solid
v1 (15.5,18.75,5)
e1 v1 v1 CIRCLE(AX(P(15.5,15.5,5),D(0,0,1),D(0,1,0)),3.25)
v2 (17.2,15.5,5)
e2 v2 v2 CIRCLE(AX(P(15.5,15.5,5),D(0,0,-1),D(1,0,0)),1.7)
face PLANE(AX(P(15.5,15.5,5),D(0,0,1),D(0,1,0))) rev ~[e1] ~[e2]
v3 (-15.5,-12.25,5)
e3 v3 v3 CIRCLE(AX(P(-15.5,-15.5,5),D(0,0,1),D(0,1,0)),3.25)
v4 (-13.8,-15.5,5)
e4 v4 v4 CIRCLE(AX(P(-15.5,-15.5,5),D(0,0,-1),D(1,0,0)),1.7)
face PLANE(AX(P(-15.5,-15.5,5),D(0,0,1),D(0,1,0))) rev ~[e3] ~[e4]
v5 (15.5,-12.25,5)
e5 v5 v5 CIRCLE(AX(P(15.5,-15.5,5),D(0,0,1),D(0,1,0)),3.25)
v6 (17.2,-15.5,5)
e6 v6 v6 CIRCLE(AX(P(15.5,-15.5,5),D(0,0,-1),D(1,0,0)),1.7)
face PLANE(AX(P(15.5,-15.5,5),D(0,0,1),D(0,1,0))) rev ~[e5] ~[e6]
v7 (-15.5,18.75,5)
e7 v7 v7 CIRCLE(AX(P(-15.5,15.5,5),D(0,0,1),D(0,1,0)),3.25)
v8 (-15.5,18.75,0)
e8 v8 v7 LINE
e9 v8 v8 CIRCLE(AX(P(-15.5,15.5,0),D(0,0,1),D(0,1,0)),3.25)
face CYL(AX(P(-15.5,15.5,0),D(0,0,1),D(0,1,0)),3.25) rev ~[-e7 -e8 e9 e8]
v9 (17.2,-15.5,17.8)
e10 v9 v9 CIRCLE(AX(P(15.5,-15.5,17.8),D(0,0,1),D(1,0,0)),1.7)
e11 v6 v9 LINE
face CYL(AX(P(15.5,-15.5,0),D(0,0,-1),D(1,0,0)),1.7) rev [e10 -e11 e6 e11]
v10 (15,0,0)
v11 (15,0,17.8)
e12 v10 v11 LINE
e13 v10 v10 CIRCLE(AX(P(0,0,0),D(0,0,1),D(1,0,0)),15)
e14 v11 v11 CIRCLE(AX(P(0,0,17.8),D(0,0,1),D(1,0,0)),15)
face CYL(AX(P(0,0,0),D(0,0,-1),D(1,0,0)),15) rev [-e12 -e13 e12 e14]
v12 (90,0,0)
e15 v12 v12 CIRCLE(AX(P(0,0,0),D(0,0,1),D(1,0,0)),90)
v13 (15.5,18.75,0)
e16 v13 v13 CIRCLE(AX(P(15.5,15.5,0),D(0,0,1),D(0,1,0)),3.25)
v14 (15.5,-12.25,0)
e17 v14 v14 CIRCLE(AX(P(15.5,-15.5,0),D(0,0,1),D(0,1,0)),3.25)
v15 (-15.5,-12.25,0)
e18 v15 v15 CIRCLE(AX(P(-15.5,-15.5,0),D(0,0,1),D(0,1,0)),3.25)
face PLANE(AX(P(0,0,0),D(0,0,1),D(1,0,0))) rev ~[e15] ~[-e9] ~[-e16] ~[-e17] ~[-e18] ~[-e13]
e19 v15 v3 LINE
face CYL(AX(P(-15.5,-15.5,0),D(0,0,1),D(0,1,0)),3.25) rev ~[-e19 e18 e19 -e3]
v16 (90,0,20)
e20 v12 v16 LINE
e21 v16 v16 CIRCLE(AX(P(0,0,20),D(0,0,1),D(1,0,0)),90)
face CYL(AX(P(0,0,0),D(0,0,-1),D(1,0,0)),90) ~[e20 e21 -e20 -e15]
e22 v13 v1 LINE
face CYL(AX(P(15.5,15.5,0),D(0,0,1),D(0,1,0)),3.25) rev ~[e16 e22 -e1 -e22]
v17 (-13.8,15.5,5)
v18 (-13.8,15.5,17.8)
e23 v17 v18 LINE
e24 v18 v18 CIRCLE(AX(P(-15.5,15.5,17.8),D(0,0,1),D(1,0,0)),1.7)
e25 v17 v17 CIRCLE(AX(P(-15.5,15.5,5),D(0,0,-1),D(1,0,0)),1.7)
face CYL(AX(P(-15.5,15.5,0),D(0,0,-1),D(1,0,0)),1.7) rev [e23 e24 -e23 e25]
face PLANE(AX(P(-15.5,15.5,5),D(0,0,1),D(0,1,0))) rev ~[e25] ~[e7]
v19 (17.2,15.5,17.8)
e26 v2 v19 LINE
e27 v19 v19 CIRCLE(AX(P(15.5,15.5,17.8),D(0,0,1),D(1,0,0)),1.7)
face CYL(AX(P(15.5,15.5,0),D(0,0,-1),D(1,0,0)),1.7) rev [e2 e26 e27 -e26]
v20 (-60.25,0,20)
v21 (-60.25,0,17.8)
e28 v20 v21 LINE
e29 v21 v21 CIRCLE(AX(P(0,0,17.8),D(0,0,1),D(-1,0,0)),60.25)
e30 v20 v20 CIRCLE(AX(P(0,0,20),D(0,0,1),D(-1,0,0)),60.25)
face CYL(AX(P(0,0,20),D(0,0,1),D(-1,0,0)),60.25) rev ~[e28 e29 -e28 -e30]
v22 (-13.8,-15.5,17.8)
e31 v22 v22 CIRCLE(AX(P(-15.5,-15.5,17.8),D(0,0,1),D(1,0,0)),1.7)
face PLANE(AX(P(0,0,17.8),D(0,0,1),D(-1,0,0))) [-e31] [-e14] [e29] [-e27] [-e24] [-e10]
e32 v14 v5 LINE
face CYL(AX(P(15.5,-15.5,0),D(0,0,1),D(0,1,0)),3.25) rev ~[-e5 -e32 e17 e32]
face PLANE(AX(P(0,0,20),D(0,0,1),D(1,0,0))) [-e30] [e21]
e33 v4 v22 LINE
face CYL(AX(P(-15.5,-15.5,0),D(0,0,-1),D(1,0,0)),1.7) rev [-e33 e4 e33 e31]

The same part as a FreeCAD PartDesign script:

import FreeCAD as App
import Part
import Sketcher
Q = App.Units.Quantity

doc = App.newDocument("Part")
body = doc.addObject("PartDesign::Body", "Body")

sketch1 = body.newObject("Sketcher::SketchObject", "Sketch")
sketch1.AttachmentSupport = (doc.getObject("XY_Plane"), [""])
sketch1.MapMode = "FlatFace"
sketch1.addGeometry([
    Part.Circle(App.Vector(0, 0, 0), App.Vector(0, 0, 1), 90),
    Part.Circle(App.Vector(-15.5, 15.5, 0), App.Vector(0, 0, 1), 1.7),
    Part.Circle(App.Vector(-15.5, -15.5, 0), App.Vector(0, 0, 1), 1.7),
    Part.Circle(App.Vector(15.5, -15.5, 0), App.Vector(0, 0, 1), 1.7),
    Part.Circle(App.Vector(15.5, 15.5, 0), App.Vector(0, 0, 1), 1.7),
    Part.Circle(App.Vector(0, 0, 0), App.Vector(0, 0, 1), 15),
], False)
sketch1.addConstraint([
    Sketcher.Constraint("Coincident", 0, 3, -1, 1),
    Sketcher.Constraint("Coincident", 5, 3, -1, 1),
    Sketcher.Constraint("Equal", 1, 2),
    Sketcher.Constraint("Equal", 2, 3),
    Sketcher.Constraint("Equal", 3, 4),
    Sketcher.Constraint("Symmetric", 1, 3, 3, 3, -1, 1),
    Sketcher.Constraint("Symmetric", 2, 3, 4, 3, -1, 1),
    Sketcher.Constraint("Symmetric", 2, 3, 3, 3, -2),
    Sketcher.Constraint("Diameter", 0, Q("180 mm")),
    Sketcher.Constraint("Diameter", 5, Q("30 mm")),
    Sketcher.Constraint("Diameter", 1, Q("3.4 mm")),
    Sketcher.Constraint("DistanceY", 2, 3, 1, 3, Q("31 mm")),
    Sketcher.Constraint("DistanceX", 2, 3, 3, 3, Q("31 mm")),
])
pad1 = body.newObject("PartDesign::Pad", "Pad")
pad1.Profile = sketch1
pad1.Length = 20

sketch2 = body.newObject("Sketcher::SketchObject", "Sketch001")
sketch2.AttachmentSupport = (doc.getObject("XY_Plane"), [""])
sketch2.MapMode = "FlatFace"
sketch2.AttachmentOffset = App.Placement(App.Vector(0, 0, 20), App.Rotation())
sketch2.addGeometry([
    Part.Circle(App.Vector(0, 0, 0), App.Vector(0, 0, 1), 60.25),
    Part.Circle(App.Vector(15.5, 15.5, 0), App.Vector(0, 0, 1), 1.7),
    Part.Circle(App.Vector(-15.5, 15.5, 0), App.Vector(0, 0, 1), 1.7),
    Part.Circle(App.Vector(15.5, -15.5, 0), App.Vector(0, 0, 1), 1.7),
    Part.Circle(App.Vector(0, 0, 0), App.Vector(0, 0, 1), 15),
    Part.Circle(App.Vector(-15.5, -15.5, 0), App.Vector(0, 0, 1), 1.7),
], False)
sketch2.addConstraint([
    Sketcher.Constraint("Coincident", 0, 3, -1, 1),
    Sketcher.Constraint("Coincident", 4, 3, -1, 1),
    Sketcher.Constraint("Equal", 1, 2),
    Sketcher.Constraint("Equal", 2, 3),
    Sketcher.Constraint("Equal", 3, 5),
    Sketcher.Constraint("Symmetric", 2, 3, 3, 3, -1, 1),
    Sketcher.Constraint("Symmetric", 1, 3, 5, 3, -1, 1),
    Sketcher.Constraint("Symmetric", 1, 3, 2, 3, -2),
    Sketcher.Constraint("Diameter", 0, Q("120.5 mm")),
    Sketcher.Constraint("Diameter", 4, Q("30 mm")),
    Sketcher.Constraint("Diameter", 1, Q("3.4 mm")),
    Sketcher.Constraint("DistanceX", 2, 3, 1, 3, Q("31 mm")),
    Sketcher.Constraint("DistanceY", 3, 3, 1, 3, Q("31 mm")),
])
pocket1 = body.newObject("PartDesign::Pocket", "Pocket")
pocket1.Profile = sketch2
pocket1.Length = 2.2

sketch3 = body.newObject("Sketcher::SketchObject", "Sketch002")
sketch3.AttachmentSupport = (doc.getObject("XY_Plane"), [""])
sketch3.MapMode = "FlatFace"
sketch3.addGeometry(Part.Circle(App.Vector(15.5, -15.5, 0), App.Vector(0, 0, 1), 1.6), False)
sketch3.addConstraint([
    Sketcher.Constraint("Diameter", 0, Q("3.2 mm")),
    Sketcher.Constraint("DistanceX", -1, 1, 0, 3, Q("15.5 mm")),
    Sketcher.Constraint("DistanceY", 0, 3, -1, 1, Q("15.5 mm")),
])
doc.recompute()
hole = body.newObject("PartDesign::Hole", "Hole")
hole.Profile = sketch3
hole.ThreadType = "None"
hole.Diameter = 3.2
hole.DepthType = "Dimension"
hole.Depth = 17.8
hole.DrillPoint = "Angled"
hole.DrillPointAngle = 118
hole.HoleCutType = "Counterbore"
hole.HoleCutDiameter = 6.5
hole.HoleCutDepth = 5
hole.Reversed = True

sketch4 = body.newObject("Sketcher::SketchObject", "Sketch003")
sketch4.AttachmentSupport = (doc.getObject("XY_Plane"), [""])
sketch4.MapMode = "FlatFace"
sketch4.addGeometry(Part.Circle(App.Vector(15.5, 15.5, 0), App.Vector(0, 0, 1), 1.6), False)
sketch4.addConstraint([
    Sketcher.Constraint("Diameter", 0, Q("3.2 mm")),
    Sketcher.Constraint("DistanceX", -1, 1, 0, 3, Q("15.5 mm")),
    Sketcher.Constraint("DistanceY", -1, 1, 0, 3, Q("15.5 mm")),
])
doc.recompute()
hole2 = body.newObject("PartDesign::Hole", "Hole001")
hole2.Profile = sketch4
hole2.ThreadType = "None"
hole2.Diameter = 3.2
hole2.DepthType = "Dimension"
hole2.Depth = 17.8
hole2.DrillPoint = "Angled"
hole2.DrillPointAngle = 118
hole2.HoleCutType = "Counterbore"
hole2.HoleCutDiameter = 6.5
hole2.HoleCutDepth = 5
hole2.Reversed = True

sketch5 = body.newObject("Sketcher::SketchObject", "Sketch004")
sketch5.AttachmentSupport = (doc.getObject("XY_Plane"), [""])
sketch5.MapMode = "FlatFace"
sketch5.addGeometry(Part.Circle(App.Vector(-15.5, -15.5, 0), App.Vector(0, 0, 1), 1.6), False)
sketch5.addConstraint([
    Sketcher.Constraint("Diameter", 0, Q("3.2 mm")),
    Sketcher.Constraint("DistanceX", 0, 3, -1, 1, Q("15.5 mm")),
    Sketcher.Constraint("DistanceY", 0, 3, -1, 1, Q("15.5 mm")),
])
doc.recompute()
hole3 = body.newObject("PartDesign::Hole", "Hole002")
hole3.Profile = sketch5
hole3.ThreadType = "None"
hole3.Diameter = 3.2
hole3.DepthType = "Dimension"
hole3.Depth = 17.8
hole3.DrillPoint = "Angled"
hole3.DrillPointAngle = 118
hole3.HoleCutType = "Counterbore"
hole3.HoleCutDiameter = 6.5
hole3.HoleCutDepth = 5
hole3.Reversed = True

sketch6 = body.newObject("Sketcher::SketchObject", "Sketch005")
sketch6.AttachmentSupport = (doc.getObject("XY_Plane"), [""])
sketch6.MapMode = "FlatFace"
sketch6.addGeometry(Part.Circle(App.Vector(-15.5, 15.5, 0), App.Vector(0, 0, 1), 1.6), False)
sketch6.addConstraint([
    Sketcher.Constraint("Diameter", 0, Q("3.2 mm")),
    Sketcher.Constraint("DistanceX", 0, 3, -1, 1, Q("15.5 mm")),
    Sketcher.Constraint("DistanceY", -1, 1, 0, 3, Q("15.5 mm")),
])
doc.recompute()
hole4 = body.newObject("PartDesign::Hole", "Hole003")
hole4.Profile = sketch6
hole4.ThreadType = "None"
hole4.Diameter = 3.2
hole4.DepthType = "Dimension"
hole4.Depth = 17.8
hole4.DrillPoint = "Angled"
hole4.DrillPointAngle = 118
hole4.HoleCutType = "Counterbore"
hole4.HoleCutDiameter = 6.5
hole4.HoleCutDepth = 5
hole4.Reversed = True

doc.recompute()
